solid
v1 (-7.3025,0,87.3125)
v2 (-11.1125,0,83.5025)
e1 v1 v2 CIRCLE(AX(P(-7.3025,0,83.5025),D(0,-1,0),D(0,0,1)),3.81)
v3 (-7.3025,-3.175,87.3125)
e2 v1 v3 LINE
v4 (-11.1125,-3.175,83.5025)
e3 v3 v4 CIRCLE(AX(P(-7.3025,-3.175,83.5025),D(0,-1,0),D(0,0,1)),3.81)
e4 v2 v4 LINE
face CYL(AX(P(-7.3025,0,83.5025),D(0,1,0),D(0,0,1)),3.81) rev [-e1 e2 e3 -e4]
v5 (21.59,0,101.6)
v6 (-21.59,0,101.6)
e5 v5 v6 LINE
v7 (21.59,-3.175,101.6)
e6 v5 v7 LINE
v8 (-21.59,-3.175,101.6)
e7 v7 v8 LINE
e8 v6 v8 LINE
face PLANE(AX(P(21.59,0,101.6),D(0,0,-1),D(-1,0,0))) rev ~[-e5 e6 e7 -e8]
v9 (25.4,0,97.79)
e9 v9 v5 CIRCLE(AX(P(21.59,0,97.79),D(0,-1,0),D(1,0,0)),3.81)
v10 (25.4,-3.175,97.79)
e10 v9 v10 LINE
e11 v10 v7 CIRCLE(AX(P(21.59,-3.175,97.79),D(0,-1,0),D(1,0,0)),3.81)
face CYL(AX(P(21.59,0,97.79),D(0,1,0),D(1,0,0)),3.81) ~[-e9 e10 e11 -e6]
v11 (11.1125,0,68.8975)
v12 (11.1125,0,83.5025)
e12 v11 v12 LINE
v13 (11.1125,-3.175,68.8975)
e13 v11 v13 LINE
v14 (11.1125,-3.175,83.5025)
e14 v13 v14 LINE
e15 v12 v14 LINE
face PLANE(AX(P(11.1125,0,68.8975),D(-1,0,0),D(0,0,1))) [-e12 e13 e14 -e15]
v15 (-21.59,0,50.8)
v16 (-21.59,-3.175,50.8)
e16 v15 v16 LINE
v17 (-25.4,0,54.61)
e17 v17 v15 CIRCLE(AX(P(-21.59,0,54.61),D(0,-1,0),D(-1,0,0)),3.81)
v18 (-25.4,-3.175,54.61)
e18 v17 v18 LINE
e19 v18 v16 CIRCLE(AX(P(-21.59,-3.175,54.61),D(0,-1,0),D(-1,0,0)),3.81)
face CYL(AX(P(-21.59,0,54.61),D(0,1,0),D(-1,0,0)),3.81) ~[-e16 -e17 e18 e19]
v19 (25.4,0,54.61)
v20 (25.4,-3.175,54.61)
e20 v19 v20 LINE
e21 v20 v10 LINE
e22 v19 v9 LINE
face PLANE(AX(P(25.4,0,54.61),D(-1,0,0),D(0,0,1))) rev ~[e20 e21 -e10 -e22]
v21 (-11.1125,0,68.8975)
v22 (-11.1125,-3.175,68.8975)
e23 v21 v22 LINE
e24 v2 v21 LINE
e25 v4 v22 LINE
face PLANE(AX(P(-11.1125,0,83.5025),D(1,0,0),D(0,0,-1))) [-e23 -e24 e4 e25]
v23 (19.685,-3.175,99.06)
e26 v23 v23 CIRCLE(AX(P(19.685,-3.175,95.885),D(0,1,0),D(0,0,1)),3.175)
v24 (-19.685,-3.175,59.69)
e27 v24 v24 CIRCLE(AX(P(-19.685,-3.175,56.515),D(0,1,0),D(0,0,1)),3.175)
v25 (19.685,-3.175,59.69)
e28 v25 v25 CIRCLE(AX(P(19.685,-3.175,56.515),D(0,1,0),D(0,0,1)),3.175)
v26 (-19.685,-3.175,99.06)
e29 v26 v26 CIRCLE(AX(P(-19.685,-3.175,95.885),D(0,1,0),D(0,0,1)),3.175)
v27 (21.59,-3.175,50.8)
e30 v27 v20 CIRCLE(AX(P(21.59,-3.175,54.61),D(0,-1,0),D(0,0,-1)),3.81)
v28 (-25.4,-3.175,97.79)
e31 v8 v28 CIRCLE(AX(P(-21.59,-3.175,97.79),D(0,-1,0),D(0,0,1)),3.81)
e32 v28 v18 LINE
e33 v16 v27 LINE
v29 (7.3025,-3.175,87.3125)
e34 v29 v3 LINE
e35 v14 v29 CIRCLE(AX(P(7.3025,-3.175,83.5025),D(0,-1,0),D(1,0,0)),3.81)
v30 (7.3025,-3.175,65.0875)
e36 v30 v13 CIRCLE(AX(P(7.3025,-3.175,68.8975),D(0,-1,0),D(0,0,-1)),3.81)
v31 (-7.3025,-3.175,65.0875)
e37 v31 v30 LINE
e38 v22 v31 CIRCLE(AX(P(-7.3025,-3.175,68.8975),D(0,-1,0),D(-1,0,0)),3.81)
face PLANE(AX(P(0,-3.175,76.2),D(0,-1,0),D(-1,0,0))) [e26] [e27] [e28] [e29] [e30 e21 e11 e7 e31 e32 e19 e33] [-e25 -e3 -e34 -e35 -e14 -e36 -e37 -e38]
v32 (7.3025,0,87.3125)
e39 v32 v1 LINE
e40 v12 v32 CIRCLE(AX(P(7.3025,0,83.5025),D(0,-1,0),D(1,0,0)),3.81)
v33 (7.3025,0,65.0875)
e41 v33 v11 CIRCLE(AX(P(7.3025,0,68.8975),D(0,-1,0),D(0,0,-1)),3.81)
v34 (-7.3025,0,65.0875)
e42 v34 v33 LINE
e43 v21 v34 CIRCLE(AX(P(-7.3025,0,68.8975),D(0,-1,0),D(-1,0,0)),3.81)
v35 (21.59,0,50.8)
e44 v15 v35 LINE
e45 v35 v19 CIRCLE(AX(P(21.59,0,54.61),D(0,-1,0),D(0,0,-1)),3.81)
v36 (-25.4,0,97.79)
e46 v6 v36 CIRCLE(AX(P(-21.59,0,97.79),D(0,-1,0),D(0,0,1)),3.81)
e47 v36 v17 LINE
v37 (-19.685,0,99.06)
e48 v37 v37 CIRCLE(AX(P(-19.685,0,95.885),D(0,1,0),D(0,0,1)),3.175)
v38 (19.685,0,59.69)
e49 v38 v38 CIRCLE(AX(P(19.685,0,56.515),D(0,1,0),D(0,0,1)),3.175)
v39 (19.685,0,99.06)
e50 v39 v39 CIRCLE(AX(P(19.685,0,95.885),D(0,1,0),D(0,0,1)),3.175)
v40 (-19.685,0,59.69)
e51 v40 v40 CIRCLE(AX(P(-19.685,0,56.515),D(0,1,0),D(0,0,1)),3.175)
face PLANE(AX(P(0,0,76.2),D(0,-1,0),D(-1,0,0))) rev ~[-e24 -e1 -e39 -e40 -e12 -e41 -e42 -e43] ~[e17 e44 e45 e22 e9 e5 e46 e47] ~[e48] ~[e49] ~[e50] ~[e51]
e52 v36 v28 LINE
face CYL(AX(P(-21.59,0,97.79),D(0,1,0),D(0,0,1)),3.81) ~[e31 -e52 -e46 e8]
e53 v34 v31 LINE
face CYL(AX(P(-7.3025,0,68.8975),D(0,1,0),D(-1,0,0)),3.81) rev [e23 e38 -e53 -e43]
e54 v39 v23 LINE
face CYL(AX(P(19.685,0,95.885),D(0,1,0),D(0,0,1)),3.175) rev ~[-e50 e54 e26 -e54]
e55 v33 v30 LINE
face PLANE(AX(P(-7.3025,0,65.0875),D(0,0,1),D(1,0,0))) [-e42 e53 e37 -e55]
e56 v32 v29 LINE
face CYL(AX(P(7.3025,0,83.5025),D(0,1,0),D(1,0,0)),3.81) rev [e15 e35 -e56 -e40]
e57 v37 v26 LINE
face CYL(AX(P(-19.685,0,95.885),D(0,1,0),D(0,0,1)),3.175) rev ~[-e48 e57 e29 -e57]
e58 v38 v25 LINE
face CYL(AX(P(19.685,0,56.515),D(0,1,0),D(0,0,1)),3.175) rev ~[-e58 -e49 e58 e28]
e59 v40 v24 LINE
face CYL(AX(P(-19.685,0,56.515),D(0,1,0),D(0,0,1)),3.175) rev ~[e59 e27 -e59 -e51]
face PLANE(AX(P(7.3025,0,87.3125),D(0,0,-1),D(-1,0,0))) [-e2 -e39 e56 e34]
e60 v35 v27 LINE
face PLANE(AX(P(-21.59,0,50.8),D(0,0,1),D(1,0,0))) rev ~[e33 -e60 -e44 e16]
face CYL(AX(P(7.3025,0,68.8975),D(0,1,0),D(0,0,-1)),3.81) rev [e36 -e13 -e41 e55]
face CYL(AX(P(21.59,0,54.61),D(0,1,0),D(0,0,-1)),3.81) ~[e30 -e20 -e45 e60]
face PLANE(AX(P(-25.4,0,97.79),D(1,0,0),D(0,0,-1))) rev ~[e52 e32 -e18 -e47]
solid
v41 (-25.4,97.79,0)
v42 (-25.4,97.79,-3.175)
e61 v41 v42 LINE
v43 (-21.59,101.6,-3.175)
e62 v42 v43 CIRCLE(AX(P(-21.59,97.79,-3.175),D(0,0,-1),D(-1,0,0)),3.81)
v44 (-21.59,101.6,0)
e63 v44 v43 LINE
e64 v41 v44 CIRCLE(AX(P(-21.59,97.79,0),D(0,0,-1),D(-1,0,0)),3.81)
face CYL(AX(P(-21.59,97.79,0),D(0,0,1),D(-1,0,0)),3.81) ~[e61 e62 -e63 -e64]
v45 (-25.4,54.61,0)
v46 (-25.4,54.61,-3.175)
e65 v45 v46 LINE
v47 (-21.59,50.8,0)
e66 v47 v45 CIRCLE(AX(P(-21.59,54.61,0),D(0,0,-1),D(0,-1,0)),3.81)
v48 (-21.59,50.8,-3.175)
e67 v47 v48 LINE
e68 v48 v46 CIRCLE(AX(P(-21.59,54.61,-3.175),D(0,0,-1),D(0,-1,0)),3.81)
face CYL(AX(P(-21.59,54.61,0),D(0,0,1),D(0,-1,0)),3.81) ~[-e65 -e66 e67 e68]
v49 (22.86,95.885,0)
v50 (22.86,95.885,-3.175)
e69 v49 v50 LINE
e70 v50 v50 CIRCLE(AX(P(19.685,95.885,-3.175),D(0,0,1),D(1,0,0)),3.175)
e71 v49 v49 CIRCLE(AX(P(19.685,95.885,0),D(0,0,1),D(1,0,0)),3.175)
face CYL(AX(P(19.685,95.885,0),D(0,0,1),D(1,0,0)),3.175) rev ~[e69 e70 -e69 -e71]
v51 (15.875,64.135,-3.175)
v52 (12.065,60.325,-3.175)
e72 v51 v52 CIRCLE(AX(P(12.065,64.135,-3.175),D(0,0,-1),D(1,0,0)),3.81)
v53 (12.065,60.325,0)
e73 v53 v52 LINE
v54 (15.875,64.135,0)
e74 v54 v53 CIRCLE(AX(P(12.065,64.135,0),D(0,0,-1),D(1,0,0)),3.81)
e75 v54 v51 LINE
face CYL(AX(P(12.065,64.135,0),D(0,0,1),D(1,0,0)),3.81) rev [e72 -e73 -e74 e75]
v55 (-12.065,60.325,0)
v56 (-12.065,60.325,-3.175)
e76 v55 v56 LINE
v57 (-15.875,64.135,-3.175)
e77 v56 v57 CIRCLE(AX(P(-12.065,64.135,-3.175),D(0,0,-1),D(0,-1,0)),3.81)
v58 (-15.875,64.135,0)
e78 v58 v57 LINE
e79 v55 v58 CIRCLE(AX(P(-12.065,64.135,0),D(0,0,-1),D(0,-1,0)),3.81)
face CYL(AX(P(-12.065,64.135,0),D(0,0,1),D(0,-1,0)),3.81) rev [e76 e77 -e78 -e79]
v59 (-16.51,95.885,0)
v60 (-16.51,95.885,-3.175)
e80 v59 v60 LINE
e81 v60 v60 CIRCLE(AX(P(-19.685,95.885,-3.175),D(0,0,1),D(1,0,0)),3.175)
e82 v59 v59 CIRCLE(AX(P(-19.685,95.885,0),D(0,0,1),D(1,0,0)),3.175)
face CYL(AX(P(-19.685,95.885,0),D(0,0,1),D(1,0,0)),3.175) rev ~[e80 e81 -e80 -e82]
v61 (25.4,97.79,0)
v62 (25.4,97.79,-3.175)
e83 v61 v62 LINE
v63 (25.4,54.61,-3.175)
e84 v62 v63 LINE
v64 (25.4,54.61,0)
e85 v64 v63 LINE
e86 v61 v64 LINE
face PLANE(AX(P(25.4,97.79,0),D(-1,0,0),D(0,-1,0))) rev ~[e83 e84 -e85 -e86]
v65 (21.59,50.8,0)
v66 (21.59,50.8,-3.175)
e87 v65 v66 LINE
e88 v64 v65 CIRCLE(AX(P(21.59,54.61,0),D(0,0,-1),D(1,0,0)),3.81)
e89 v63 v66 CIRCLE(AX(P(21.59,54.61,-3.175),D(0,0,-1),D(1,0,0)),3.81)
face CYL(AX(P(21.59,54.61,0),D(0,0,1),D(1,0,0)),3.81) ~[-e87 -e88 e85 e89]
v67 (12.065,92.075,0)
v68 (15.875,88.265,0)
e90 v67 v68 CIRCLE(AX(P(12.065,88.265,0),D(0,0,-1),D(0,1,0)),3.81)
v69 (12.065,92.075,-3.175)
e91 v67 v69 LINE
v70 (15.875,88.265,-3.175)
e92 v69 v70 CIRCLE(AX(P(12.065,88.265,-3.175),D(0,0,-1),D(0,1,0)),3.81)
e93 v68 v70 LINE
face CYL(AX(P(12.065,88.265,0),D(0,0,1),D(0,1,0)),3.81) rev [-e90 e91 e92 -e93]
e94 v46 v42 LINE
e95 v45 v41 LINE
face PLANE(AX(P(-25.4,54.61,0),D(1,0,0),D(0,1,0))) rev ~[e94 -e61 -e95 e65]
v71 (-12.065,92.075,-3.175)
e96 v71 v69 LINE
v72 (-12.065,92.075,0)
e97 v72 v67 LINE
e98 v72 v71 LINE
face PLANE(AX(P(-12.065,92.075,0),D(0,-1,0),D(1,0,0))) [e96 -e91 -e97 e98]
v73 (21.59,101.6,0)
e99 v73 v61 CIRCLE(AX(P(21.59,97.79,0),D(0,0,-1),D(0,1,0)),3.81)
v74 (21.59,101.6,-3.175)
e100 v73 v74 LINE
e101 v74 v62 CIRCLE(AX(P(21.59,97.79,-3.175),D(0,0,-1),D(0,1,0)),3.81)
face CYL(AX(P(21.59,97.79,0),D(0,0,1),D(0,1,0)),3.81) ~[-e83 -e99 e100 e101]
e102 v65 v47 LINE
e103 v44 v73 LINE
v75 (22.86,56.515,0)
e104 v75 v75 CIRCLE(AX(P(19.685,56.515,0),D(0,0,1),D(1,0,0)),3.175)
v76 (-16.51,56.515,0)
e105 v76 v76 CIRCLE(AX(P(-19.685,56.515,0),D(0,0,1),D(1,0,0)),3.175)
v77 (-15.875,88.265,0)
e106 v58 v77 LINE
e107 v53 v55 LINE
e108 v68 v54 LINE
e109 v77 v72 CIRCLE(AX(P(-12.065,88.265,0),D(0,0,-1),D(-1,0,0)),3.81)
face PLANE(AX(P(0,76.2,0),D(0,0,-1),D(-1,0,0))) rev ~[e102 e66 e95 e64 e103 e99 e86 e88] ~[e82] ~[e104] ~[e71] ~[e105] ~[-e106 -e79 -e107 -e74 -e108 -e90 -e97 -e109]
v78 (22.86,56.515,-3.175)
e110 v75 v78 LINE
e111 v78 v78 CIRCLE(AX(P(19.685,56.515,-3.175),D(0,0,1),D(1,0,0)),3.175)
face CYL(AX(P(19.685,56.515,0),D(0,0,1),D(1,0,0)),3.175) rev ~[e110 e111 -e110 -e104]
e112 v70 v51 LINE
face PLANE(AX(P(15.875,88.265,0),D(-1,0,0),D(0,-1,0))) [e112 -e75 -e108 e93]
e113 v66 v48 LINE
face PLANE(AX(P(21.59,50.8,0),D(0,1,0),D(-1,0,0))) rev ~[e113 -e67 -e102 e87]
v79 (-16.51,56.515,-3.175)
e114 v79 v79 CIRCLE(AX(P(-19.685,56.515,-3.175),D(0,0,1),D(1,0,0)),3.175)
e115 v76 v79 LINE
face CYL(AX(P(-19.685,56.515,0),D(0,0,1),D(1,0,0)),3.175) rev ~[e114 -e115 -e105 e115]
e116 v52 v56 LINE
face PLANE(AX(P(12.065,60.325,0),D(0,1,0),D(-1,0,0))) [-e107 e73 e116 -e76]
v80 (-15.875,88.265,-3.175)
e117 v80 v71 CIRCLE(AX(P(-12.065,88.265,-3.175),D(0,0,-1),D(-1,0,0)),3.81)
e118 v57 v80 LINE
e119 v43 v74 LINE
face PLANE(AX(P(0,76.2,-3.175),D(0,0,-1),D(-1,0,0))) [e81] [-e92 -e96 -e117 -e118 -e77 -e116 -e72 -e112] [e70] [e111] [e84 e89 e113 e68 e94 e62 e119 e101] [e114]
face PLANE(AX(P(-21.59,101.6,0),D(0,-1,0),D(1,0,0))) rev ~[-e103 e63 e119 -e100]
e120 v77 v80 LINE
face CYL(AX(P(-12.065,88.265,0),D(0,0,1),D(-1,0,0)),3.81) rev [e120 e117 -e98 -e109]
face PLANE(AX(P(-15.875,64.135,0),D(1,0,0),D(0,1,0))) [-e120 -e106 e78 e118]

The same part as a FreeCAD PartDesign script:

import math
import FreeCAD as App
import Part
import Sketcher
Q = App.Units.Quantity

doc = App.newDocument("Part")
body = doc.addObject("PartDesign::Body", "Body")

sketch1 = doc.addObject("Sketcher::SketchObject", "Sketch")
body.addObject(sketch1)
sketch1.AttachmentSupport = (doc.XY_Plane, [""])
sketch1.MapMode = "FlatFace"
sketch1.addGeometry([
    Part.LineSegment(App.Vector(21.59, 101.6, 0), App.Vector(-21.59, 101.6, 0)),
    Part.ArcOfCircle(Part.Circle(App.Vector(-21.59, 97.79, 0), App.Vector(0, 0, 1), 3.81), math.radians(90), math.radians(180)),
    Part.LineSegment(App.Vector(-25.4, 97.79, 0), App.Vector(-25.4, 54.61, 0)),
    Part.ArcOfCircle(Part.Circle(App.Vector(-21.59, 54.61, 0), App.Vector(0, 0, 1), 3.81), math.radians(-180), math.radians(-90)),
    Part.LineSegment(App.Vector(-21.59, 50.8, 0), App.Vector(21.59, 50.8, 0)),
    Part.ArcOfCircle(Part.Circle(App.Vector(21.59, 54.61, 0), App.Vector(0, 0, 1), 3.81), math.radians(-90), math.radians(0)),
    Part.LineSegment(App.Vector(25.4, 54.61, 0), App.Vector(25.4, 97.79, 0)),
    Part.ArcOfCircle(Part.Circle(App.Vector(21.59, 97.79, 0), App.Vector(0, 0, 1), 3.81), math.radians(0), math.radians(90)),
    Part.Circle(App.Vector(19.685, 56.515, 0), App.Vector(0, 0, 1), 3.175),
    Part.Circle(App.Vector(-19.685, 56.515, 0), App.Vector(0, 0, 1), 3.175),
    Part.Circle(App.Vector(19.685, 95.885, 0), App.Vector(0, 0, 1), 3.175),
    Part.LineSegment(App.Vector(-12.065, 92.075, 0), App.Vector(12.065, 92.075, 0)),
    Part.ArcOfCircle(Part.Circle(App.Vector(12.065, 88.265, 0), App.Vector(0, 0, 1), 3.81), math.radians(0), math.radians(90)),
    Part.LineSegment(App.Vector(15.875, 88.265, 0), App.Vector(15.875, 64.135, 0)),
    Part.ArcOfCircle(Part.Circle(App.Vector(12.065, 64.135, 0), App.Vector(0, 0, 1), 3.81), math.radians(-90), math.radians(0)),
    Part.LineSegment(App.Vector(12.065, 60.325, 0), App.Vector(-12.065, 60.325, 0)),
    Part.ArcOfCircle(Part.Circle(App.Vector(-12.065, 64.135, 0), App.Vector(0, 0, 1), 3.81), math.radians(-180), math.radians(-90)),
    Part.LineSegment(App.Vector(-15.875, 64.135, 0), App.Vector(-15.875, 88.265, 0)),
    Part.ArcOfCircle(Part.Circle(App.Vector(-12.065, 88.265, 0), App.Vector(0, 0, 1), 3.81), math.radians(90), math.radians(180)),
    Part.Circle(App.Vector(-19.685, 95.885, 0), App.Vector(0, 0, 1), 3.175),
], False)
sketch1.addConstraint([
    Sketcher.Constraint("Tangent", 0, 2, 1, 1),
    Sketcher.Constraint("Tangent", 1, 2, 2, 1),
    Sketcher.Constraint("Tangent", 2, 2, 3, 1),
    Sketcher.Constraint("Tangent", 3, 2, 4, 1),
    Sketcher.Constraint("Tangent", 4, 2, 5, 1),
    Sketcher.Constraint("Tangent", 5, 2, 6, 1),
    Sketcher.Constraint("Tangent", 6, 2, 7, 1),
    Sketcher.Constraint("Tangent", 7, 2, 0, 1),
    Sketcher.Constraint("Tangent", 11, 2, 12, 2),
    Sketcher.Constraint("Tangent", 12, 1, 13, 1),
    Sketcher.Constraint("Tangent", 13, 2, 14, 2),
    Sketcher.Constraint("Tangent", 14, 1, 15, 1),
    Sketcher.Constraint("Tangent", 15, 2, 16, 2),
    Sketcher.Constraint("Tangent", 16, 1, 17, 1),
    Sketcher.Constraint("Tangent", 17, 2, 18, 2),
    Sketcher.Constraint("Tangent", 18, 1, 11, 1),
    Sketcher.Constraint("Horizontal", 0),
    Sketcher.Constraint("Vertical", 2),
    Sketcher.Constraint("Horizontal", 4),
    Sketcher.Constraint("Vertical", 6),
    Sketcher.Constraint("Horizontal", 11),
    Sketcher.Constraint("Vertical", 13),
    Sketcher.Constraint("Horizontal", 15),
    Sketcher.Constraint("Vertical", 17),
    Sketcher.Constraint("Equal", 1, 3),
    Sketcher.Constraint("Equal", 3, 5),
    Sketcher.Constraint("Equal", 5, 7),
    Sketcher.Constraint("Equal", 8, 9),
    Sketcher.Constraint("Equal", 9, 10),
    Sketcher.Constraint("Equal", 7, 12),
    Sketcher.Constraint("Equal", 12, 14),
    Sketcher.Constraint("Equal", 14, 16),
    Sketcher.Constraint("Equal", 16, 18),
    Sketcher.Constraint("Equal", 10, 19),
    Sketcher.Constraint("Symmetric", 8, 3, 9, 3, -2),
    Sketcher.Constraint("Symmetric", 10, 3, 19, 3, -2),
    Sketcher.Constraint("Vertical", 8, 3, 10, 3),
    Sketcher.Constraint("Equal", 4, 2),
    Sketcher.Constraint("Equal", 15, 13),
    Sketcher.Constraint("Diameter", 8, Q("0.25 in")),
    Sketcher.Constraint("Radius", 1, Q("0.15 in")),
    Sketcher.Constraint("DistanceX", 0, 2, 0, 1, Q("1.7 in")),
    Sketcher.Constraint("DistanceY", -1, 1, 0, 2, Q("4 in")),
    Sketcher.Constraint("DistanceX", 1, 2, -1, 1, Q("1 in")),
    Sketcher.Constraint("DistanceX", 11, 1, 11, 2, Q("0.95 in")),
    Sketcher.Constraint("DistanceX", 12, 3, 10, 3, Q("0.3 in")),
    Sketcher.Constraint("DistanceY", 12, 3, 10, 3, Q("0.3 in")),
    Sketcher.Constraint("DistanceY", 8, 3, 14, 3, Q("0.3 in")),
    Sketcher.Constraint("DistanceX", 9, 3, 16, 3, Q("0.3 in")),
    Sketcher.Constraint("DistanceY", -1, 1, 8, 3, Q("2.225 in")),
])
pad1 = doc.addObject("PartDesign::Pad", "Pad")
body.addObject(pad1)
pad1.Profile = sketch1
pad1.Length = Q("0.125 in")
pad1.Reversed = True
body2 = doc.addObject("PartDesign::Body", "Body001")

sketch2 = doc.addObject("Sketcher::SketchObject", "Sketch001")
body2.addObject(sketch2)
sketch2.AttachmentSupport = (doc.getObject("XZ_Plane001"), [""])
sketch2.MapMode = "FlatFace"
sketch2.addGeometry([
    Part.LineSegment(App.Vector(21.59, 50.8, 0), App.Vector(-21.59, 50.8, 0)),
    Part.ArcOfCircle(Part.Circle(App.Vector(-21.59, 54.61, 0), App.Vector(0, 0, 1), 3.81), math.radians(-180), math.radians(-90)),
    Part.LineSegment(App.Vector(-25.4, 54.61, 0), App.Vector(-25.4, 97.79, 0)),
    Part.ArcOfCircle(Part.Circle(App.Vector(-21.59, 97.79, 0), App.Vector(0, 0, 1), 3.81), math.radians(90), math.radians(180)),
    Part.LineSegment(App.Vector(-21.59, 101.6, 0), App.Vector(21.59, 101.6, 0)),
    Part.ArcOfCircle(Part.Circle(App.Vector(21.59, 97.79, 0), App.Vector(0, 0, 1), 3.81), math.radians(0), math.radians(90)),
    Part.LineSegment(App.Vector(25.4, 97.79, 0), App.Vector(25.4, 54.61, 0)),
    Part.ArcOfCircle(Part.Circle(App.Vector(21.59, 54.61, 0), App.Vector(0, 0, 1), 3.81), math.radians(-90), math.radians(0)),
    Part.Circle(App.Vector(19.685, 95.885, 0), App.Vector(0, 0, 1), 3.175),
    Part.Circle(App.Vector(-19.685, 95.885, 0), App.Vector(0, 0, 1), 3.175),
    Part.LineSegment(App.Vector(-7.3025, 65.0875, 0), App.Vector(7.3025, 65.0875, 0)),
    Part.ArcOfCircle(Part.Circle(App.Vector(7.3025, 68.8975, 0), App.Vector(0, 0, 1), 3.81), math.radians(-90), math.radians(0)),
    Part.LineSegment(App.Vector(11.1125, 68.8975, 0), App.Vector(11.1125, 83.5025, 0)),
    Part.ArcOfCircle(Part.Circle(App.Vector(7.3025, 83.5025, 0), App.Vector(0, 0, 1), 3.81), math.radians(0), math.radians(90)),
    Part.LineSegment(App.Vector(7.3025, 87.3125, 0), App.Vector(-7.3025, 87.3125, 0)),
    Part.ArcOfCircle(Part.Circle(App.Vector(-7.3025, 83.5025, 0), App.Vector(0, 0, 1), 3.81), math.radians(90), math.radians(180)),
    Part.LineSegment(App.Vector(-11.1125, 83.5025, 0), App.Vector(-11.1125, 68.8975, 0)),
    Part.ArcOfCircle(Part.Circle(App.Vector(-7.3025, 68.8975, 0), App.Vector(0, 0, 1), 3.81), math.radians(-180), math.radians(-90)),
    Part.Circle(App.Vector(19.685, 56.515, 0), App.Vector(0, 0, 1), 3.175),
    Part.Circle(App.Vector(-19.685, 56.515, 0), App.Vector(0, 0, 1), 3.175),
], False)
sketch2.addConstraint([
    Sketcher.Constraint("Tangent", 0, 2, 1, 2),
    Sketcher.Constraint("Tangent", 1, 1, 2, 1),
    Sketcher.Constraint("Tangent", 2, 2, 3, 2),
    Sketcher.Constraint("Tangent", 3, 1, 4, 1),
    Sketcher.Constraint("Tangent", 4, 2, 5, 2),
    Sketcher.Constraint("Tangent", 5, 1, 6, 1),
    Sketcher.Constraint("Tangent", 6, 2, 7, 2),
    Sketcher.Constraint("Tangent", 7, 1, 0, 1),
    Sketcher.Constraint("Tangent", 10, 2, 11, 1),
    Sketcher.Constraint("Tangent", 11, 2, 12, 1),
    Sketcher.Constraint("Tangent", 12, 2, 13, 1),
    Sketcher.Constraint("Tangent", 13, 2, 14, 1),
    Sketcher.Constraint("Tangent", 14, 2, 15, 1),
    Sketcher.Constraint("Tangent", 15, 2, 16, 1),
    Sketcher.Constraint("Tangent", 16, 2, 17, 1),
    Sketcher.Constraint("Tangent", 17, 2, 10, 1),
    Sketcher.Constraint("Horizontal", 0),
    Sketcher.Constraint("Vertical", 2),
    Sketcher.Constraint("Horizontal", 4),
    Sketcher.Constraint("Vertical", 6),
    Sketcher.Constraint("Horizontal", 10),
    Sketcher.Constraint("Vertical", 12),
    Sketcher.Constraint("Horizontal", 14),
    Sketcher.Constraint("Vertical", 16),
    Sketcher.Constraint("Equal", 1, 3),
    Sketcher.Constraint("Equal", 3, 5),
    Sketcher.Constraint("Equal", 5, 7),
    Sketcher.Constraint("Equal", 8, 9),
    Sketcher.Constraint("Equal", 7, 11),
    Sketcher.Constraint("Equal", 11, 13),
    Sketcher.Constraint("Equal", 13, 15),
    Sketcher.Constraint("Equal", 15, 17),
    Sketcher.Constraint("Equal", 9, 18),
    Sketcher.Constraint("Equal", 18, 19),
    Sketcher.Constraint("Symmetric", 8, 3, 9, 3, -2),
    Sketcher.Constraint("Symmetric", 18, 3, 19, 3, -2),
    Sketcher.Constraint("Vertical", 8, 3, 18, 3),
    Sketcher.Constraint("Equal", 4, 2),
    Sketcher.Constraint("Equal", 14, 12),
    Sketcher.Constraint("Diameter", 8, Q("0.25 in")),
    Sketcher.Constraint("Radius", 1, Q("0.15 in")),
    Sketcher.Constraint("DistanceX", 0, 2, 0, 1, Q("1.7 in")),
    Sketcher.Constraint("DistanceY", -1, 1, 0, 2, Q("2 in")),
    Sketcher.Constraint("DistanceX", 1, 1, -1, 1, Q("1 in")),
    Sketcher.Constraint("DistanceX", 10, 1, 10, 2, Q("0.575 in")),
    Sketcher.Constraint("DistanceX", 9, 3, 8, 3, Q("1.55 in")),
    Sketcher.Constraint("DistanceY", -1, 1, 8, 3, Q("3.775 in")),
    Sketcher.Constraint("DistanceY", -1, 1, 18, 3, Q("2.225 in")),
    Sketcher.Constraint("DistanceY", -1, 1, 10, 2, Q("2.5625 in")),
    Sketcher.Constraint("DistanceX", -1, 1, 11, 2, Q("0.4375 in")),
])
pad2 = doc.addObject("PartDesign::Pad", "Pad001")
body2.addObject(pad2)
pad2.Profile = sketch2
pad2.Length = Q("0.125 in")

doc.recompute()
